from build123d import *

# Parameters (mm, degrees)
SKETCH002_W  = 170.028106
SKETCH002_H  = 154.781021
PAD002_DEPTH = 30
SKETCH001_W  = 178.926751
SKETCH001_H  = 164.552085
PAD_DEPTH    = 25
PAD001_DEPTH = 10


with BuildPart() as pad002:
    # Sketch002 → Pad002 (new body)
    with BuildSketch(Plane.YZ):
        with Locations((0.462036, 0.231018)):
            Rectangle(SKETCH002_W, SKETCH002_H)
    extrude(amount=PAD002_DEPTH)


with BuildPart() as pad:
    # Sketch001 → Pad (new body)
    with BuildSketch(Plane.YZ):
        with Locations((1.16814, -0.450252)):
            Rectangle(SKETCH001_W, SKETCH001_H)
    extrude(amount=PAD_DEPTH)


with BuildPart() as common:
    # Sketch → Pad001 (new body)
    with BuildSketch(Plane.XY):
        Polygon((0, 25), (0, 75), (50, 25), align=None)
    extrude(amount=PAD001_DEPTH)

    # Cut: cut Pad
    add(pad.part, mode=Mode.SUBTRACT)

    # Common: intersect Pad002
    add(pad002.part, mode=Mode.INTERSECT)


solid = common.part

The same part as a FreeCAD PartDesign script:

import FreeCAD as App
import Part
import Sketcher
from FreeCAD import Vector

doc = App.newDocument("Part")
body = doc.addObject("PartDesign::Body", "Body")

# Sketch on YZ plane
sketch1 = body.newObject("Sketcher::SketchObject", "Sketch")
sketch1.AttachmentSupport = (doc.getObject("YZ_Plane"), [""])
sketch1.MapMode = "FlatFace"
sketch1.addGeometry([
    Part.LineSegment(Vector(-85, 78, 0), Vector(-85, -77, 0)),
    Part.LineSegment(Vector(-85, -77, 0), Vector(85, -77, 0)),
    Part.LineSegment(Vector(85, -77, 0), Vector(85, 78, 0)),
    Part.LineSegment(Vector(85, 78, 0), Vector(-85, 78, 0)),
], False)
sketch1.addConstraint([
    Sketcher.Constraint("Coincident", 0, 2, 1, 1),
    Sketcher.Constraint("Coincident", 1, 2, 2, 1),
    Sketcher.Constraint("Coincident", 2, 2, 3, 1),
    Sketcher.Constraint("Coincident", 3, 2, 0, 1),
    Sketcher.Constraint("Vertical", 0),
    Sketcher.Constraint("Horizontal", 1),
    Sketcher.Constraint("Vertical", 2),
    Sketcher.Constraint("Horizontal", 3),
    Sketcher.Constraint("DistanceY", 0, 2, 0, 1, 154.781021),
    Sketcher.Constraint("DistanceX", 1, 1, 1, 2, 170.028106),
    Sketcher.Constraint("DistanceX", -1, 1, 1, 2, 85.476089),
    Sketcher.Constraint("DistanceY", -1, 1, 2, 2, 77.621528),
])
pad1 = body.newObject("PartDesign::Pad", "Pad")
pad1.Profile = sketch1
pad1.Length = 30
body2 = doc.addObject("PartDesign::Body", "Body001")

# Sketch on YZ plane
sketch2 = body2.newObject("Sketcher::SketchObject", "Sketch001")
sketch2.AttachmentSupport = (doc.getObject("YZ_Plane001"), [""])
sketch2.MapMode = "FlatFace"
sketch2.addGeometry([
    Part.LineSegment(Vector(-88, 82, 0), Vector(-88, -83, 0)),
    Part.LineSegment(Vector(-88, -83, 0), Vector(91, -83, 0)),
    Part.LineSegment(Vector(91, -83, 0), Vector(91, 82, 0)),
    Part.LineSegment(Vector(91, 82, 0), Vector(-88, 82, 0)),
], False)
sketch2.addConstraint([
    Sketcher.Constraint("Coincident", 0, 2, 1, 1),
    Sketcher.Constraint("Coincident", 1, 2, 2, 1),
    Sketcher.Constraint("Coincident", 2, 2, 3, 1),
    Sketcher.Constraint("Coincident", 3, 2, 0, 1),
    Sketcher.Constraint("Vertical", 0),
    Sketcher.Constraint("Horizontal", 1),
    Sketcher.Constraint("Vertical", 2),
    Sketcher.Constraint("Horizontal", 3),
    Sketcher.Constraint("DistanceX", 1, 1, 1, 2, 178.926751),
    Sketcher.Constraint("DistanceY", 0, 2, 0, 1, 164.552085),
    Sketcher.Constraint("DistanceY", -1, 1, 2, 2, 81.82579),
    Sketcher.Constraint("DistanceX", 0, 2, -1, 1, 88.295236),
])
pad2 = body2.newObject("PartDesign::Pad", "Pad001")
pad2.Profile = sketch2
pad2.Length = 25
body3 = doc.addObject("PartDesign::Body", "Body002")

# Sketch on XY plane
sketch3 = body3.newObject("Sketcher::SketchObject", "Sketch002")
sketch3.AttachmentSupport = (doc.getObject("XY_Plane002"), [""])
sketch3.MapMode = "FlatFace"
sketch3.addGeometry([
    Part.LineSegment(Vector(0, 75, 0), Vector(0, 25, 0)),
    Part.LineSegment(Vector(0, 25, 0), Vector(50, 25, 0)),
    Part.LineSegment(Vector(50, 25, 0), Vector(0, 75, 0)),
], False)
sketch3.addConstraint([
    Sketcher.Constraint("Coincident", 0, 2, 1, 1),
    Sketcher.Constraint("Coincident", 1, 2, 2, 1),
    Sketcher.Constraint("Coincident", 2, 2, 0, 1),
    Sketcher.Constraint("Vertical", 0),
    Sketcher.Constraint("Horizontal", 1),
    Sketcher.Constraint("PointOnObject", 0, 2, -2),
    Sketcher.Constraint("Equal", 1, 0),
    Sketcher.Constraint("DistanceX", 1, 1, 1, 2, 50.0),
    Sketcher.Constraint("DistanceY", -1, 1, 0, 2, 25.0),
])
pad3 = body3.newObject("PartDesign::Pad", "Pad002")
pad3.Profile = sketch3
pad3.Length = 10
doc.recompute()

boolean = body3.newObject("PartDesign::Boolean", "Boolean")
boolean.Type = "Cut"
boolean.addObjects([body2])
doc.recompute()

boolean2 = body3.newObject("PartDesign::Boolean", "Boolean001")
boolean2.Type = "Common"
boolean2.addObjects([body])

doc.recompute()
